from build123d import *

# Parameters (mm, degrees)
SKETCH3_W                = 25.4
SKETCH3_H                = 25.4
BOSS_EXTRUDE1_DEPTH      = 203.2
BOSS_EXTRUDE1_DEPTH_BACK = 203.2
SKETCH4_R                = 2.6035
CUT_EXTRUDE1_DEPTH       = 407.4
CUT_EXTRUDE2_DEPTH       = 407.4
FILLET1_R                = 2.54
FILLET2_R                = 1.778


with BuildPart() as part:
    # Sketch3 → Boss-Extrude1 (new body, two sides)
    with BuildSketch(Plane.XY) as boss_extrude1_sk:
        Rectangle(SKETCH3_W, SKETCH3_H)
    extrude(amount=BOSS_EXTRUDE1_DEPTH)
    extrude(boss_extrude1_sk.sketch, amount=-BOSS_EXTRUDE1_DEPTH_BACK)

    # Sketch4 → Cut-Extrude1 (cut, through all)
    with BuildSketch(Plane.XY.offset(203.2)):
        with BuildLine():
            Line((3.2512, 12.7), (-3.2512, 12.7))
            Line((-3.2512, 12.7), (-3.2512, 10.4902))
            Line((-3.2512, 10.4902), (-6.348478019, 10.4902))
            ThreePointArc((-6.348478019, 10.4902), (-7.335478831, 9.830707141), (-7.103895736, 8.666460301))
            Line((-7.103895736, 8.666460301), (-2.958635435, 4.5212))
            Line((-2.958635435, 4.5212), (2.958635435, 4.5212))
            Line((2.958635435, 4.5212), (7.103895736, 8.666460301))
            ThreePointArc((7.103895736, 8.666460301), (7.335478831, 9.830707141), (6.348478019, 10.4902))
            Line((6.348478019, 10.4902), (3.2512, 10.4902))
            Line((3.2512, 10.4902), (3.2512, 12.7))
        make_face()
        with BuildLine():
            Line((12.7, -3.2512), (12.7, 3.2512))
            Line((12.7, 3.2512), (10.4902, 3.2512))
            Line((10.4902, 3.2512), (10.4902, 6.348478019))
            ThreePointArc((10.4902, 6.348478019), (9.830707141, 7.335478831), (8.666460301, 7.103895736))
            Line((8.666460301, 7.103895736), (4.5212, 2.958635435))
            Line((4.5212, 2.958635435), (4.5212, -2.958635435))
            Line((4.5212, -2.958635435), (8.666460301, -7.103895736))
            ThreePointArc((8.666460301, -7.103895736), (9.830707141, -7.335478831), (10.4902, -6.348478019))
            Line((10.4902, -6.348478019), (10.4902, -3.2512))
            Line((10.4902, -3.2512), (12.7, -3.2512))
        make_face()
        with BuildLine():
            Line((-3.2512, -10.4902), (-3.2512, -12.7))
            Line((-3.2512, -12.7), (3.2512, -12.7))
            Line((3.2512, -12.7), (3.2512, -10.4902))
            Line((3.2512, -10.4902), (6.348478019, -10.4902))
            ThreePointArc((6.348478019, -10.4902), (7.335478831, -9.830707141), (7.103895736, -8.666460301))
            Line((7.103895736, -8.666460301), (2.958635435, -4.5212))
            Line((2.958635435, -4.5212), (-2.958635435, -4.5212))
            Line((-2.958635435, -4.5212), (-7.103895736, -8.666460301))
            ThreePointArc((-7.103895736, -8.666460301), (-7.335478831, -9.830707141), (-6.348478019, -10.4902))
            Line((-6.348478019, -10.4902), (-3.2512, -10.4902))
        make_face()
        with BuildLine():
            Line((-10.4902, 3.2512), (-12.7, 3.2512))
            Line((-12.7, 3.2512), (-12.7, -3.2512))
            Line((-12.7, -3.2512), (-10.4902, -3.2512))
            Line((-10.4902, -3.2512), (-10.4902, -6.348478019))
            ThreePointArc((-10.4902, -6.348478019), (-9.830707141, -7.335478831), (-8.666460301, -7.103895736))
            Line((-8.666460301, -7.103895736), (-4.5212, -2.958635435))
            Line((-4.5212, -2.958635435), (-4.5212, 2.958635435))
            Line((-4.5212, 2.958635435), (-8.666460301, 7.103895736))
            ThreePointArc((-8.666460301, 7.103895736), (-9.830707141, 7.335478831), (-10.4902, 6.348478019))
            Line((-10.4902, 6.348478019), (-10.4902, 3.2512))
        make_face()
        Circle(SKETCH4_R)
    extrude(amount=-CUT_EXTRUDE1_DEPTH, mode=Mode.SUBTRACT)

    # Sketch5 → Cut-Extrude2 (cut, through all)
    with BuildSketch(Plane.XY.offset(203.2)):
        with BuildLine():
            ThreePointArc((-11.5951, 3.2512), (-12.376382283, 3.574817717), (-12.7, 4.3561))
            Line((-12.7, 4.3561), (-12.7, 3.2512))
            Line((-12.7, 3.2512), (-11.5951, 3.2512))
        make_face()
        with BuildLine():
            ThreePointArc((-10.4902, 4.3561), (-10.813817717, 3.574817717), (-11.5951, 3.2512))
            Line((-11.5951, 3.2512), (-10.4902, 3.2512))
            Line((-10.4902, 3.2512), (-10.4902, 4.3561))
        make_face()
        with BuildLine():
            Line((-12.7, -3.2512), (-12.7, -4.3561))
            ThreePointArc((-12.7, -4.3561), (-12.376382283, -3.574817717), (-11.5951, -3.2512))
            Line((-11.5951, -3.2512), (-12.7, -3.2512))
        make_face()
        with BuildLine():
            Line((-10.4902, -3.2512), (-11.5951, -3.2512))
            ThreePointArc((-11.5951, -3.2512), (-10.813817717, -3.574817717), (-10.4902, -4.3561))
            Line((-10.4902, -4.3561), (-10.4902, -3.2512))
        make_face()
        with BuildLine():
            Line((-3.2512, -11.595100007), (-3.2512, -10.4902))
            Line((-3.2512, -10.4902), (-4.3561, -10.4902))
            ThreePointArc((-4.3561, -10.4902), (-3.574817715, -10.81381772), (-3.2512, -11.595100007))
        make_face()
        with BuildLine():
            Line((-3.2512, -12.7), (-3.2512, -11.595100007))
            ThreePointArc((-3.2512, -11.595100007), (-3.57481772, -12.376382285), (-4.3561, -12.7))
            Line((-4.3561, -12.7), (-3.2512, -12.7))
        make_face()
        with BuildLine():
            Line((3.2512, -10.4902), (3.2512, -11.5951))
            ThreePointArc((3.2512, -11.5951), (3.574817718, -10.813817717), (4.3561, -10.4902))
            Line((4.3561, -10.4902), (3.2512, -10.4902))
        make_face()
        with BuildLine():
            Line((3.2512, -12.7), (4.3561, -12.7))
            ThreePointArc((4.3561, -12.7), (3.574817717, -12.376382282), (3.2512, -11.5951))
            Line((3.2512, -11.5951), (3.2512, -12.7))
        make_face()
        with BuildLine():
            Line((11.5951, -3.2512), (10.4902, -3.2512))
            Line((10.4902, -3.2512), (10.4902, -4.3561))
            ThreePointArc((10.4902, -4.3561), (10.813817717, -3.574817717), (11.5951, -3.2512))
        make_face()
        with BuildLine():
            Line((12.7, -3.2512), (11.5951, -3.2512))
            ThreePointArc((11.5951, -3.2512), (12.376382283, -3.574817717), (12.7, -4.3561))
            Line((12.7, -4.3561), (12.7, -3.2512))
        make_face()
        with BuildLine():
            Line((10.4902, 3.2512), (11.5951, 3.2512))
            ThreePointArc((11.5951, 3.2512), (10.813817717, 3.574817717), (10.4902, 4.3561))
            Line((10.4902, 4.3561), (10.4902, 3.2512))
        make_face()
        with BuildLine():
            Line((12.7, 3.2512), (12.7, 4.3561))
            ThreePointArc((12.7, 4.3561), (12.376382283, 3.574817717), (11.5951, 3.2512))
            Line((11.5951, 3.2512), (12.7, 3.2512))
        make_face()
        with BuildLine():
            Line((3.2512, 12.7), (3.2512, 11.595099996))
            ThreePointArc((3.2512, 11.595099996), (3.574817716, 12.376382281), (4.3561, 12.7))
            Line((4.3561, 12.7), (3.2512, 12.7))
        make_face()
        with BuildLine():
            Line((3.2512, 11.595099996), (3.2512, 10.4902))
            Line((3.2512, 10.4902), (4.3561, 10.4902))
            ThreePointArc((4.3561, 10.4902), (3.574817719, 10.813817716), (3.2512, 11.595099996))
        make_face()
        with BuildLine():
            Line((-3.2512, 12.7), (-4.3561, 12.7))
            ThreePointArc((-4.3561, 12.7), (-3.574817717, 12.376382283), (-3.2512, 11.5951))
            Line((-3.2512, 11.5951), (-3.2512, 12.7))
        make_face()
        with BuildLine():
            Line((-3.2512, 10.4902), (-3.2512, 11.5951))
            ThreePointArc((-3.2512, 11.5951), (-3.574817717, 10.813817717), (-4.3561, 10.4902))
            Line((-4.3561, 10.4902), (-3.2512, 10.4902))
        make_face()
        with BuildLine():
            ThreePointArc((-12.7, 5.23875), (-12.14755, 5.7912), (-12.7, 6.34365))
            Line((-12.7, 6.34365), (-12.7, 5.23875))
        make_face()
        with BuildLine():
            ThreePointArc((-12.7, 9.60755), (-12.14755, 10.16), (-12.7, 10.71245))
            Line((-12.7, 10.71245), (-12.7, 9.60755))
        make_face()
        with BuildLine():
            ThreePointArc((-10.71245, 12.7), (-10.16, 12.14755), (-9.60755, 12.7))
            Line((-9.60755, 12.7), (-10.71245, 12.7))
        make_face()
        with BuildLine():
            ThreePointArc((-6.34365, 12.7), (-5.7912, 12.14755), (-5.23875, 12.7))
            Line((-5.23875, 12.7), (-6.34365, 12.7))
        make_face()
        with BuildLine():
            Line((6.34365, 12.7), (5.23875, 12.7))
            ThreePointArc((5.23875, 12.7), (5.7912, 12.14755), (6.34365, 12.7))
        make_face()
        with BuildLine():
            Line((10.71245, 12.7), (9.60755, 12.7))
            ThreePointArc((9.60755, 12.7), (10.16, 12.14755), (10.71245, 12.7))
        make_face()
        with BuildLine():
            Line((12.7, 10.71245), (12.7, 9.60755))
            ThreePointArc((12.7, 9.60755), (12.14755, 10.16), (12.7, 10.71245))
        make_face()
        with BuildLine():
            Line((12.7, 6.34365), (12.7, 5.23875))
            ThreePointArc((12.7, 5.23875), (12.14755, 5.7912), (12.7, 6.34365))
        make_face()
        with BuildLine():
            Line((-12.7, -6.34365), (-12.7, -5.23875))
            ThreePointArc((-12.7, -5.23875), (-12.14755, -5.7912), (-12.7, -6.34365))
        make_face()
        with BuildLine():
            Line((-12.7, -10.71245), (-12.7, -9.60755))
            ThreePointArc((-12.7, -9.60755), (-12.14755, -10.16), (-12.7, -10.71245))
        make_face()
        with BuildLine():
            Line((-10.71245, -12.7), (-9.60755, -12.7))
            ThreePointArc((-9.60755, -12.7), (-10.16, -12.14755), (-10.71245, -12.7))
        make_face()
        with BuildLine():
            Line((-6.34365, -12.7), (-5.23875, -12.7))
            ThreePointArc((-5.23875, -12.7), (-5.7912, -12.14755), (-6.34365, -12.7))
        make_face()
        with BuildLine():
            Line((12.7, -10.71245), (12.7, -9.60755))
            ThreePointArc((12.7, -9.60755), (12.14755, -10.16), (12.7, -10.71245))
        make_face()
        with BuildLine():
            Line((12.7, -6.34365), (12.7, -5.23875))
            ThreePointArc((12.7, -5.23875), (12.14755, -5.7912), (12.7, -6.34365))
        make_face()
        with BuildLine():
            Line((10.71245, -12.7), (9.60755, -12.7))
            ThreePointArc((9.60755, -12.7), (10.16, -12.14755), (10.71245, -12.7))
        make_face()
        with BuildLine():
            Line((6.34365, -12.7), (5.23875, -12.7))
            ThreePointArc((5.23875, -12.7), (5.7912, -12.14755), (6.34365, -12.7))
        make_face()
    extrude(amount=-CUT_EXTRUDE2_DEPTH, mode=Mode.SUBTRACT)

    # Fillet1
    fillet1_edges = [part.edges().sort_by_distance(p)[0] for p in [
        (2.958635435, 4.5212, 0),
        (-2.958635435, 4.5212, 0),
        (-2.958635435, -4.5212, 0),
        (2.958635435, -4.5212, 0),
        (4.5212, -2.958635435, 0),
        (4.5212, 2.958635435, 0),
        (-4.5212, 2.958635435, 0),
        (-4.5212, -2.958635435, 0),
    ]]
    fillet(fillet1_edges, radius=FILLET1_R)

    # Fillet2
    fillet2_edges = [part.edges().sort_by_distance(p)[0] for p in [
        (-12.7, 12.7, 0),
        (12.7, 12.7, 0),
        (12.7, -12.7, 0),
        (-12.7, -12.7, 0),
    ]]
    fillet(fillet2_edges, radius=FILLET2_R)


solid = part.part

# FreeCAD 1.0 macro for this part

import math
import FreeCAD as App
import Part
import Sketcher

V = App.Vector
Q = App.Units.Quantity


def edges_at(feature, points):
    """Names of the edges that pass closest to the given points."""
    edges = feature.Shape.Edges
    near = lambda p: min(range(len(edges)), key=lambda i: edges[i].distToShape(Part.Vertex(*p))[0])
    return sorted({f"Edge{near(p) + 1}" for p in points})


def add_polygon(sketch, points):
    """Adds a closed chain of lines whose ends are joined by coincident constraints."""
    first, n = sketch.GeometryCount, len(points)
    for a, b in zip(points, points[1:] + points[:1]):
        sketch.addGeometry(Part.LineSegment(App.Vector(*a, 0), App.Vector(*b, 0)), False)
    for i in range(n):
        sketch.addConstraint(Sketcher.Constraint("Coincident", first + i, 2, first + (i + 1) % n, 1))

doc = App.newDocument("Part")
body = doc.addObject("PartDesign::Body", "Body")

sketch1 = body.newObject("Sketcher::SketchObject", "Sketch")
sketch1.AttachmentSupport = (doc.getObject("XY_Plane"), [""])
sketch1.MapMode = "FlatFace"
add_polygon(sketch1, [(-13, 13), (-13, -13), (13, -13), (13, 13)])
sketch1.addConstraint([
    Sketcher.Constraint("Vertical", 0),
    Sketcher.Constraint("Horizontal", 1),
    Sketcher.Constraint("Vertical", 2),
    Sketcher.Constraint("Horizontal", 3),
    Sketcher.Constraint("Symmetric", 0, 2, 2, 2, -1, 1),
    Sketcher.Constraint("Equal", 3, 0),
    Sketcher.Constraint("DistanceX", 1, 1, 1, 2, Q("1 in")),
])
pad1 = body.newObject("PartDesign::Pad", "Pad")
pad1.Profile = sketch1
pad1.Type = "TwoLengths"
pad1.Length = Q("8 in")
pad1.Length2 = Q("8 in")

sketch2 = body.newObject("Sketcher::SketchObject", "Sketch001")
sketch2.AttachmentSupport = (doc.getObject("XY_Plane"), [""])
sketch2.MapMode = "FlatFace"
sketch2.AttachmentOffset = App.Placement(V(0, 0, 8 * 25.4), App.Rotation())
sketch2.addGeometry([
    Part.LineSegment(V(3.3, 12.7, 0), V(-3.3, 12.7, 0)),
    Part.LineSegment(V(-3.3, 12.7, 0), V(-3.3, 10.5, 0)),
    Part.LineSegment(V(-3.3, 10.5, 0), V(-6.3, 10.5, 0)),
    Part.ArcOfCircle(Part.Circle(V(-6.3, 9.4, 0), V(0, 0, 1), 1.1), math.radians(90), math.radians(225)),
    Part.LineSegment(V(-7.1, 8.7, 0), V(-3, 4.5, 0)),
    Part.LineSegment(V(-3, 4.5, 0), V(3, 4.5, 0)),
    Part.LineSegment(V(3, 4.5, 0), V(7.1, 8.7, 0)),
    Part.ArcOfCircle(Part.Circle(V(6.3, 9.4, 0), V(0, 0, 1), 1.1), math.radians(-45), math.radians(90)),
    Part.LineSegment(V(6.3, 10.5, 0), V(3.3, 10.5, 0)),
    Part.LineSegment(V(3.3, 10.5, 0), V(3.3, 12.7, 0)),
    Part.LineSegment(V(12.7, -3.3, 0), V(12.7, 3.3, 0)),
    Part.LineSegment(V(12.7, 3.3, 0), V(10.5, 3.3, 0)),
    Part.LineSegment(V(10.5, 3.3, 0), V(10.5, 6.3, 0)),
    Part.ArcOfCircle(Part.Circle(V(9.4, 6.3, 0), V(0, 0, 1), 1.1), math.radians(0), math.radians(135)),
    Part.LineSegment(V(8.7, 7.1, 0), V(4.5, 3, 0)),
    Part.LineSegment(V(4.5, 3, 0), V(4.5, -3, 0)),
    Part.LineSegment(V(4.5, -3, 0), V(8.7, -7.1, 0)),
    Part.ArcOfCircle(Part.Circle(V(9.4, -6.3, 0), V(0, 0, 1), 1.1), math.radians(-135), math.radians(0)),
    Part.LineSegment(V(10.5, -6.3, 0), V(10.5, -3.3, 0)),
    Part.LineSegment(V(10.5, -3.3, 0), V(12.7, -3.3, 0)),
    Part.LineSegment(V(-3.3, -10.5, 0), V(-3.3, -12.7, 0)),
    Part.LineSegment(V(-3.3, -12.7, 0), V(3.3, -12.7, 0)),
    Part.LineSegment(V(3.3, -12.7, 0), V(3.3, -10.5, 0)),
    Part.LineSegment(V(3.3, -10.5, 0), V(6.3, -10.5, 0)),
    Part.ArcOfCircle(Part.Circle(V(6.3, -9.4, 0), V(0, 0, 1), 1.1), math.radians(-90), math.radians(45)),
    Part.LineSegment(V(7.1, -8.7, 0), V(3, -4.5, 0)),
    Part.LineSegment(V(3, -4.5, 0), V(-3, -4.5, 0)),
    Part.LineSegment(V(-3, -4.5, 0), V(-7.1, -8.7, 0)),
    Part.ArcOfCircle(Part.Circle(V(-6.3, -9.4, 0), V(0, 0, 1), 1.1), math.radians(135), math.radians(270)),
    Part.LineSegment(V(-6.3, -10.5, 0), V(-3.3, -10.5, 0)),
    Part.LineSegment(V(-10.5, 3.3, 0), V(-12.7, 3.3, 0)),
    Part.LineSegment(V(-12.7, 3.3, 0), V(-12.7, -3.3, 0)),
    Part.LineSegment(V(-12.7, -3.3, 0), V(-10.5, -3.3, 0)),
    Part.LineSegment(V(-10.5, -3.3, 0), V(-10.5, -6.3, 0)),
    Part.ArcOfCircle(Part.Circle(V(-9.4, -6.3, 0), V(0, 0, 1), 1.1), math.radians(-180), math.radians(-45)),
    Part.LineSegment(V(-8.7, -7.1, 0), V(-4.5, -3, 0)),
    Part.LineSegment(V(-4.5, -3, 0), V(-4.5, 3, 0)),
    Part.LineSegment(V(-4.5, 3, 0), V(-8.7, 7.1, 0)),
    Part.ArcOfCircle(Part.Circle(V(-9.4, 6.3, 0), V(0, 0, 1), 1.1), math.radians(45), math.radians(180)),
    Part.LineSegment(V(-10.5, 6.3, 0), V(-10.5, 3.3, 0)),
    Part.Circle(V(0, 0, 0), V(0, 0, 1), 2.6),
], False)
sketch2.addConstraint([
    Sketcher.Constraint("Coincident", 0, 2, 1, 1),
    Sketcher.Constraint("Coincident", 1, 2, 2, 1),
    Sketcher.Constraint("Tangent", 2, 2, 3, 1),
    Sketcher.Constraint("Tangent", 3, 2, 4, 1),
    Sketcher.Constraint("Coincident", 4, 2, 5, 1),
    Sketcher.Constraint("Coincident", 5, 2, 6, 1),
    Sketcher.Constraint("Tangent", 6, 2, 7, 1),
    Sketcher.Constraint("Tangent", 7, 2, 8, 1),
    Sketcher.Constraint("Coincident", 8, 2, 9, 1),
    Sketcher.Constraint("Coincident", 9, 2, 0, 1),
    Sketcher.Constraint("Coincident", 10, 2, 11, 1),
    Sketcher.Constraint("Coincident", 11, 2, 12, 1),
    Sketcher.Constraint("Tangent", 12, 2, 13, 1),
    Sketcher.Constraint("Tangent", 13, 2, 14, 1),
    Sketcher.Constraint("Coincident", 14, 2, 15, 1),
    Sketcher.Constraint("Coincident", 15, 2, 16, 1),
    Sketcher.Constraint("Tangent", 16, 2, 17, 1),
    Sketcher.Constraint("Tangent", 17, 2, 18, 1),
    Sketcher.Constraint("Coincident", 18, 2, 19, 1),
    Sketcher.Constraint("Coincident", 19, 2, 10, 1),
    Sketcher.Constraint("Coincident", 20, 2, 21, 1),
    Sketcher.Constraint("Coincident", 21, 2, 22, 1),
    Sketcher.Constraint("Coincident", 22, 2, 23, 1),
    Sketcher.Constraint("Tangent", 23, 2, 24, 1),
    Sketcher.Constraint("Tangent", 24, 2, 25, 1),
    Sketcher.Constraint("Coincident", 25, 2, 26, 1),
    Sketcher.Constraint("Coincident", 26, 2, 27, 1),
    Sketcher.Constraint("Tangent", 27, 2, 28, 1),
    Sketcher.Constraint("Tangent", 28, 2, 29, 1),
    Sketcher.Constraint("Coincident", 29, 2, 20, 1),
    Sketcher.Constraint("Coincident", 30, 2, 31, 1),
    Sketcher.Constraint("Coincident", 31, 2, 32, 1),
    Sketcher.Constraint("Coincident", 32, 2, 33, 1),
    Sketcher.Constraint("Tangent", 33, 2, 34, 1),
    Sketcher.Constraint("Tangent", 34, 2, 35, 1),
    Sketcher.Constraint("Coincident", 35, 2, 36, 1),
    Sketcher.Constraint("Coincident", 36, 2, 37, 1),
    Sketcher.Constraint("Tangent", 37, 2, 38, 1),
    Sketcher.Constraint("Tangent", 38, 2, 39, 1),
    Sketcher.Constraint("Coincident", 39, 2, 30, 1),
    Sketcher.Constraint("Horizontal", 0),
    Sketcher.Constraint("Vertical", 1),
    Sketcher.Constraint("Horizontal", 2),
    Sketcher.Constraint("Horizontal", 5),
    Sketcher.Constraint("Horizontal", 8),
    Sketcher.Constraint("Vertical", 9),
    Sketcher.Constraint("Vertical", 10),
    Sketcher.Constraint("Horizontal", 11),
    Sketcher.Constraint("Vertical", 12),
    Sketcher.Constraint("Vertical", 15),
    Sketcher.Constraint("Vertical", 18),
    Sketcher.Constraint("Horizontal", 19),
    Sketcher.Constraint("Vertical", 20),
    Sketcher.Constraint("Horizontal", 21),
    Sketcher.Constraint("Vertical", 22),
    Sketcher.Constraint("Horizontal", 23),
    Sketcher.Constraint("Horizontal", 26),
    Sketcher.Constraint("Horizontal", 29),
    Sketcher.Constraint("Horizontal", 30),
    Sketcher.Constraint("Vertical", 31),
    Sketcher.Constraint("Horizontal", 32),
    Sketcher.Constraint("Vertical", 33),
    Sketcher.Constraint("Vertical", 36),
    Sketcher.Constraint("Vertical", 39),
    Sketcher.Constraint("Coincident", 40, 3, -1, 1),
    Sketcher.Constraint("Equal", 3, 7),
    Sketcher.Constraint("Equal", 7, 13),
    Sketcher.Constraint("Equal", 13, 17),
    Sketcher.Constraint("Equal", 17, 24),
    Sketcher.Constraint("Equal", 24, 28),
    Sketcher.Constraint("Equal", 28, 34),
    Sketcher.Constraint("Equal", 34, 38),
    Sketcher.Constraint("Symmetric", 3, 3, 24, 3, -1, 1),
    Sketcher.Constraint("Symmetric", 7, 3, 28, 3, -1, 1),
    Sketcher.Constraint("Symmetric", 13, 3, 34, 3, -1, 1),
    Sketcher.Constraint("Symmetric", 17, 3, 38, 3, -1, 1),
    Sketcher.Constraint("Symmetric", 9, 2, 20, 2, -1, 1),
    Sketcher.Constraint("Symmetric", 4, 2, 25, 2, -1, 1),
    Sketcher.Constraint("Symmetric", 19, 2, 30, 2, -1, 1),
    Sketcher.Constraint("Symmetric", 14, 2, 35, 2, -1, 1),
    Sketcher.Constraint("Symmetric", 3, 3, 7, 3, -2),
    Sketcher.Constraint("Symmetric", 17, 3, 34, 3, -2),
    Sketcher.Constraint("Perpendicular", 4, 6),
    Sketcher.Constraint("Parallel", 6, 14),
    Sketcher.Constraint("Perpendicular", 14, 16),
    Sketcher.Constraint("Perpendicular", 25, 27),
    Sketcher.Constraint("Perpendicular", 35, 37),
    Sketcher.Constraint("Horizontal", 3, 2, 6, 2),
    Sketcher.Constraint("Horizontal", 11, 2, 30, 2),
    Sketcher.Constraint("Horizontal", 19, 2, 31, 2),
    Sketcher.Constraint("Vertical", 1, 2, 20, 2),
    Sketcher.Constraint("Vertical", 9, 2, 21, 2),
    Sketcher.Constraint("Equal", 32, 1),
    Sketcher.Constraint("Equal", 21, 10),
    Sketcher.Constraint("Equal", 29, 12),
    Sketcher.Constraint("Equal", 26, 15),
    Sketcher.Constraint("Diameter", 40, Q("0.205 in")),
    Sketcher.Constraint("DistanceY", -1, 1, 0, 2, Q("0.5 in")),
    Sketcher.Constraint("DistanceX", -1, 1, 10, 2, Q("0.5 in")),
    Sketcher.Constraint("DistanceX", 0, 2, 0, 1, Q("0.256 in")),
    Sketcher.Constraint("DistanceX", 11, 2, 11, 1, Q("0.087 in")),
    Sketcher.Constraint("DistanceY", 10, 2, 5, 2, Q("0.05 in")),
    Sketcher.Constraint("Radius", 3, 1.068322),
    Sketcher.Constraint("DistanceX", 7, 3, 13, 3, Q("0.121 in")),
])
pocket1 = body.newObject("PartDesign::Pocket", "Pocket")
pocket1.Profile = sketch2
pocket1.Type = "ThroughAll"

sketch3 = body.newObject("Sketcher::SketchObject", "Sketch002")
sketch3.AttachmentSupport = (doc.getObject("XY_Plane"), [""])
sketch3.MapMode = "FlatFace"
sketch3.AttachmentOffset = App.Placement(V(0, 0, 8 * 25.4), App.Rotation())
sketch3.addGeometry([
    Part.ArcOfCircle(Part.Circle(V(-11.6, 4.4, 0), V(0, 0, 1), 1.1), math.radians(180), math.radians(270)),
    Part.LineSegment(V(-12.7, 4.4, 0), V(-12.7, 3.3, 0)),
    Part.LineSegment(V(-12.7, 3.3, 0), V(-11.6, 3.3, 0)),
    Part.ArcOfCircle(Part.Circle(V(-11.6, 4.4, 0), V(0, 0, 1), 1.1), math.radians(-90), math.radians(0)),
    Part.LineSegment(V(-11.6, 3.3, 0), V(-10.5, 3.3, 0)),
    Part.LineSegment(V(-10.5, 3.3, 0), V(-10.5, 4.4, 0)),
    Part.LineSegment(V(-12.7, -3.3, 0), V(-12.7, -4.4, 0)),
    Part.ArcOfCircle(Part.Circle(V(-11.6, -4.4, 0), V(0, 0, 1), 1.1), math.radians(90), math.radians(180)),
    Part.LineSegment(V(-11.6, -3.3, 0), V(-12.7, -3.3, 0)),
    Part.LineSegment(V(-10.5, -3.3, 0), V(-11.6, -3.3, 0)),
    Part.ArcOfCircle(Part.Circle(V(-11.6, -4.4, 0), V(0, 0, 1), 1.1), math.radians(0), math.radians(90)),
    Part.LineSegment(V(-10.5, -4.4, 0), V(-10.5, -3.3, 0)),
    Part.LineSegment(V(-3.3, -11.6, 0), V(-3.3, -10.5, 0)),
    Part.LineSegment(V(-3.3, -10.5, 0), V(-4.4, -10.5, 0)),
    Part.ArcOfCircle(Part.Circle(V(-4.4, -11.6, 0), V(0, 0, 1), 1.1), math.radians(0), math.radians(90)),
    Part.LineSegment(V(-3.3, -12.7, 0), V(-3.3, -11.6, 0)),
    Part.ArcOfCircle(Part.Circle(V(-4.4, -11.6, 0), V(0, 0, 1), 1.1), math.radians(-90), math.radians(0)),
    Part.LineSegment(V(-4.4, -12.7, 0), V(-3.3, -12.7, 0)),
    Part.LineSegment(V(3.3, -10.5, 0), V(3.3, -11.6, 0)),
    Part.ArcOfCircle(Part.Circle(V(4.4, -11.6, 0), V(0, 0, 1), 1.1), math.radians(90), math.radians(180)),
    Part.LineSegment(V(4.4, -10.5, 0), V(3.3, -10.5, 0)),
    Part.LineSegment(V(3.3, -12.7, 0), V(4.4, -12.7, 0)),
    Part.ArcOfCircle(Part.Circle(V(4.4, -11.6, 0), V(0, 0, 1), 1.1), math.radians(180), math.radians(270)),
    Part.LineSegment(V(3.3, -11.6, 0), V(3.3, -12.7, 0)),
    Part.LineSegment(V(11.6, -3.3, 0), V(10.5, -3.3, 0)),
    Part.LineSegment(V(10.5, -3.3, 0), V(10.5, -4.4, 0)),
    Part.ArcOfCircle(Part.Circle(V(11.6, -4.4, 0), V(0, 0, 1), 1.1), math.radians(90), math.radians(180)),
    Part.LineSegment(V(12.7, -3.3, 0), V(11.6, -3.3, 0)),
    Part.ArcOfCircle(Part.Circle(V(11.6, -4.4, 0), V(0, 0, 1), 1.1), math.radians(0), math.radians(90)),
    Part.LineSegment(V(12.7, -4.4, 0), V(12.7, -3.3, 0)),
    Part.LineSegment(V(10.5, 3.3, 0), V(11.6, 3.3, 0)),
    Part.ArcOfCircle(Part.Circle(V(11.6, 4.4, 0), V(0, 0, 1), 1.1), math.radians(180), math.radians(270)),
    Part.LineSegment(V(10.5, 4.4, 0), V(10.5, 3.3, 0)),
    Part.LineSegment(V(12.7, 3.3, 0), V(12.7, 4.4, 0)),
    Part.ArcOfCircle(Part.Circle(V(11.6, 4.4, 0), V(0, 0, 1), 1.1), math.radians(-90), math.radians(0)),
    Part.LineSegment(V(11.6, 3.3, 0), V(12.7, 3.3, 0)),
    Part.LineSegment(V(3.3, 12.7, 0), V(3.3, 11.6, 0)),
    Part.ArcOfCircle(Part.Circle(V(4.4, 11.6, 0), V(0, 0, 1), 1.1), math.radians(90), math.radians(180)),
    Part.LineSegment(V(4.4, 12.7, 0), V(3.3, 12.7, 0)),
    Part.LineSegment(V(3.3, 11.6, 0), V(3.3, 10.5, 0)),
    Part.LineSegment(V(3.3, 10.5, 0), V(4.4, 10.5, 0)),
    Part.ArcOfCircle(Part.Circle(V(4.4, 11.6, 0), V(0, 0, 1), 1.1), math.radians(-180), math.radians(-90)),
    Part.LineSegment(V(-3.3, 12.7, 0), V(-4.4, 12.7, 0)),
    Part.ArcOfCircle(Part.Circle(V(-4.4, 11.6, 0), V(0, 0, 1), 1.1), math.radians(0), math.radians(90)),
    Part.LineSegment(V(-3.3, 11.6, 0), V(-3.3, 12.7, 0)),
    Part.LineSegment(V(-3.3, 10.5, 0), V(-3.3, 11.6, 0)),
    Part.ArcOfCircle(Part.Circle(V(-4.4, 11.6, 0), V(0, 0, 1), 1.1), math.radians(-90), math.radians(0)),
    Part.LineSegment(V(-4.4, 10.5, 0), V(-3.3, 10.5, 0)),
    Part.ArcOfCircle(Part.Circle(V(-12.7, 5.8, 0), V(0, 0, 1), 0.6), math.radians(-90), math.radians(90)),
    Part.LineSegment(V(-12.7, 6.3, 0), V(-12.7, 5.2, 0)),
    Part.ArcOfCircle(Part.Circle(V(-12.7, 10.2, 0), V(0, 0, 1), 0.6), math.radians(-90), math.radians(90)),
    Part.LineSegment(V(-12.7, 10.7, 0), V(-12.7, 9.6, 0)),
    Part.ArcOfCircle(Part.Circle(V(-10.2, 12.7, 0), V(0, 0, 1), 0.6), math.radians(180), math.radians(360)),
    Part.LineSegment(V(-9.6, 12.7, 0), V(-10.7, 12.7, 0)),
    Part.ArcOfCircle(Part.Circle(V(-5.8, 12.7, 0), V(0, 0, 1), 0.6), math.radians(180), math.radians(360)),
    Part.LineSegment(V(-5.2, 12.7, 0), V(-6.3, 12.7, 0)),
    Part.LineSegment(V(6.3, 12.7, 0), V(5.2, 12.7, 0)),
    Part.ArcOfCircle(Part.Circle(V(5.8, 12.7, 0), V(0, 0, 1), 0.6), math.radians(180), math.radians(360)),
    Part.LineSegment(V(10.7, 12.7, 0), V(9.6, 12.7, 0)),
    Part.ArcOfCircle(Part.Circle(V(10.2, 12.7, 0), V(0, 0, 1), 0.6), math.radians(180), math.radians(360)),
    Part.LineSegment(V(12.7, 9.6, 0), V(12.7, 10.7, 0)),
    Part.ArcOfCircle(Part.Circle(V(12.7, 10.2, 0), V(0, 0, 1), 0.6), math.radians(90), math.radians(270)),
    Part.LineSegment(V(12.7, 5.2, 0), V(12.7, 6.3, 0)),
    Part.ArcOfCircle(Part.Circle(V(12.7, 5.8, 0), V(0, 0, 1), 0.6), math.radians(90), math.radians(270)),
    Part.LineSegment(V(-12.7, -5.2, 0), V(-12.7, -6.3, 0)),
    Part.ArcOfCircle(Part.Circle(V(-12.7, -5.8, 0), V(0, 0, 1), 0.6), math.radians(-90), math.radians(90)),
    Part.LineSegment(V(-12.7, -9.6, 0), V(-12.7, -10.7, 0)),
    Part.ArcOfCircle(Part.Circle(V(-12.7, -10.2, 0), V(0, 0, 1), 0.6), math.radians(-90), math.radians(90)),
    Part.LineSegment(V(-10.7, -12.7, 0), V(-9.6, -12.7, 0)),
    Part.ArcOfCircle(Part.Circle(V(-10.2, -12.7, 0), V(0, 0, 1), 0.6), math.radians(0), math.radians(180)),
    Part.LineSegment(V(-6.3, -12.7, 0), V(-5.2, -12.7, 0)),
    Part.ArcOfCircle(Part.Circle(V(-5.8, -12.7, 0), V(0, 0, 1), 0.6), math.radians(0), math.radians(180)),
    Part.LineSegment(V(12.7, -10.7, 0), V(12.7, -9.6, 0)),
    Part.ArcOfCircle(Part.Circle(V(12.7, -10.2, 0), V(0, 0, 1), 0.6), math.radians(90), math.radians(270)),
    Part.LineSegment(V(12.7, -6.3, 0), V(12.7, -5.2, 0)),
    Part.ArcOfCircle(Part.Circle(V(12.7, -5.8, 0), V(0, 0, 1), 0.6), math.radians(90), math.radians(270)),
    Part.LineSegment(V(9.6, -12.7, 0), V(10.7, -12.7, 0)),
    Part.ArcOfCircle(Part.Circle(V(10.2, -12.7, 0), V(0, 0, 1), 0.6), math.radians(0), math.radians(180)),
    Part.LineSegment(V(5.2, -12.7, 0), V(6.3, -12.7, 0)),
    Part.ArcOfCircle(Part.Circle(V(5.8, -12.7, 0), V(0, 0, 1), 0.6), math.radians(0), math.radians(180)),
], False)
sketch3.addConstraint([
    Sketcher.Constraint("Tangent", 0, 1, 1, 1),
    Sketcher.Constraint("Coincident", 1, 2, 2, 1),
    Sketcher.Constraint("Tangent", 2, 2, 0, 2),
    Sketcher.Constraint("Tangent", 3, 1, 4, 1),
    Sketcher.Constraint("Coincident", 4, 2, 5, 1),
    Sketcher.Constraint("Tangent", 5, 2, 3, 2),
    Sketcher.Constraint("Tangent", 6, 2, 7, 2),
    Sketcher.Constraint("Tangent", 7, 1, 8, 1),
    Sketcher.Constraint("Coincident", 8, 2, 6, 1),
    Sketcher.Constraint("Tangent", 9, 2, 10, 2),
    Sketcher.Constraint("Tangent", 10, 1, 11, 1),
    Sketcher.Constraint("Coincident", 11, 2, 9, 1),
    Sketcher.Constraint("Coincident", 12, 2, 13, 1),
    Sketcher.Constraint("Tangent", 13, 2, 14, 2),
    Sketcher.Constraint("Tangent", 14, 1, 12, 1),
    Sketcher.Constraint("Tangent", 15, 2, 16, 2),
    Sketcher.Constraint("Tangent", 16, 1, 17, 1),
    Sketcher.Constraint("Coincident", 17, 2, 15, 1),
    Sketcher.Constraint("Tangent", 18, 2, 19, 2),
    Sketcher.Constraint("Tangent", 19, 1, 20, 1),
    Sketcher.Constraint("Coincident", 20, 2, 18, 1),
    Sketcher.Constraint("Tangent", 21, 2, 22, 2),
    Sketcher.Constraint("Tangent", 22, 1, 23, 1),
    Sketcher.Constraint("Coincident", 23, 2, 21, 1),
    Sketcher.Constraint("Coincident", 24, 2, 25, 1),
    Sketcher.Constraint("Tangent", 25, 2, 26, 2),
    Sketcher.Constraint("Tangent", 26, 1, 24, 1),
    Sketcher.Constraint("Tangent", 27, 2, 28, 2),
    Sketcher.Constraint("Tangent", 28, 1, 29, 1),
    Sketcher.Constraint("Coincident", 29, 2, 27, 1),
    Sketcher.Constraint("Tangent", 30, 2, 31, 2),
    Sketcher.Constraint("Tangent", 31, 1, 32, 1),
    Sketcher.Constraint("Coincident", 32, 2, 30, 1),
    Sketcher.Constraint("Tangent", 33, 2, 34, 2),
    Sketcher.Constraint("Tangent", 34, 1, 35, 1),
    Sketcher.Constraint("Coincident", 35, 2, 33, 1),
    Sketcher.Constraint("Tangent", 36, 2, 37, 2),
    Sketcher.Constraint("Tangent", 37, 1, 38, 1),
    Sketcher.Constraint("Coincident", 38, 2, 36, 1),
    Sketcher.Constraint("Coincident", 39, 2, 40, 1),
    Sketcher.Constraint("Tangent", 40, 2, 41, 2),
    Sketcher.Constraint("Tangent", 41, 1, 39, 1),
    Sketcher.Constraint("Tangent", 42, 2, 43, 2),
    Sketcher.Constraint("Tangent", 43, 1, 44, 1),
    Sketcher.Constraint("Coincident", 44, 2, 42, 1),
    Sketcher.Constraint("Tangent", 45, 2, 46, 2),
    Sketcher.Constraint("Tangent", 46, 1, 47, 1),
    Sketcher.Constraint("Coincident", 47, 2, 45, 1),
    Sketcher.Constraint("Coincident", 48, 1, 49, 2),
    Sketcher.Constraint("Coincident", 49, 1, 48, 2),
    Sketcher.Constraint("Coincident", 50, 1, 51, 2),
    Sketcher.Constraint("Coincident", 51, 1, 50, 2),
    Sketcher.Constraint("Coincident", 52, 1, 53, 2),
    Sketcher.Constraint("Coincident", 53, 1, 52, 2),
    Sketcher.Constraint("Coincident", 54, 1, 55, 2),
    Sketcher.Constraint("Coincident", 55, 1, 54, 2),
    Sketcher.Constraint("Coincident", 56, 1, 57, 2),
    Sketcher.Constraint("Coincident", 57, 1, 56, 2),
    Sketcher.Constraint("Coincident", 58, 1, 59, 2),
    Sketcher.Constraint("Coincident", 59, 1, 58, 2),
    Sketcher.Constraint("Coincident", 60, 1, 61, 2),
    Sketcher.Constraint("Coincident", 61, 1, 60, 2),
    Sketcher.Constraint("Coincident", 62, 1, 63, 2),
    Sketcher.Constraint("Coincident", 63, 1, 62, 2),
    Sketcher.Constraint("Coincident", 64, 1, 65, 2),
    Sketcher.Constraint("Coincident", 65, 1, 64, 2),
    Sketcher.Constraint("Coincident", 66, 1, 67, 2),
    Sketcher.Constraint("Coincident", 67, 1, 66, 2),
    Sketcher.Constraint("Coincident", 68, 1, 69, 2),
    Sketcher.Constraint("Coincident", 69, 1, 68, 2),
    Sketcher.Constraint("Coincident", 70, 1, 71, 2),
    Sketcher.Constraint("Coincident", 71, 1, 70, 2),
    Sketcher.Constraint("Coincident", 72, 1, 73, 2),
    Sketcher.Constraint("Coincident", 73, 1, 72, 2),
    Sketcher.Constraint("Coincident", 74, 1, 75, 2),
    Sketcher.Constraint("Coincident", 75, 1, 74, 2),
    Sketcher.Constraint("Coincident", 76, 1, 77, 2),
    Sketcher.Constraint("Coincident", 77, 1, 76, 2),
    Sketcher.Constraint("Coincident", 78, 1, 79, 2),
    Sketcher.Constraint("Coincident", 79, 1, 78, 2),
    Sketcher.Constraint("Vertical", 1),
    Sketcher.Constraint("Horizontal", 2),
    Sketcher.Constraint("Horizontal", 4),
    Sketcher.Constraint("Vertical", 5),
    Sketcher.Constraint("Vertical", 6),
    Sketcher.Constraint("Horizontal", 8),
    Sketcher.Constraint("Horizontal", 9),
    Sketcher.Constraint("Vertical", 11),
    Sketcher.Constraint("Vertical", 12),
    Sketcher.Constraint("Horizontal", 13),
    Sketcher.Constraint("Vertical", 15),
    Sketcher.Constraint("Horizontal", 17),
    Sketcher.Constraint("Vertical", 18),
    Sketcher.Constraint("Horizontal", 20),
    Sketcher.Constraint("Horizontal", 21),
    Sketcher.Constraint("Vertical", 23),
    Sketcher.Constraint("Horizontal", 24),
    Sketcher.Constraint("Vertical", 25),
    Sketcher.Constraint("Horizontal", 27),
    Sketcher.Constraint("Vertical", 29),
    Sketcher.Constraint("Horizontal", 30),
    Sketcher.Constraint("Vertical", 32),
    Sketcher.Constraint("Vertical", 33),
    Sketcher.Constraint("Horizontal", 35),
    Sketcher.Constraint("Vertical", 36),
    Sketcher.Constraint("Horizontal", 38),
    Sketcher.Constraint("Vertical", 39),
    Sketcher.Constraint("Horizontal", 40),
    Sketcher.Constraint("Horizontal", 42),
    Sketcher.Constraint("Vertical", 44),
    Sketcher.Constraint("Vertical", 45),
    Sketcher.Constraint("Horizontal", 47),
    Sketcher.Constraint("Vertical", 49),
    Sketcher.Constraint("Vertical", 51),
    Sketcher.Constraint("Horizontal", 53),
    Sketcher.Constraint("Horizontal", 55),
    Sketcher.Constraint("Horizontal", 56),
    Sketcher.Constraint("Horizontal", 58),
    Sketcher.Constraint("Vertical", 60),
    Sketcher.Constraint("Vertical", 62),
    Sketcher.Constraint("Vertical", 64),
    Sketcher.Constraint("Vertical", 66),
    Sketcher.Constraint("Horizontal", 68),
    Sketcher.Constraint("Horizontal", 70),
    Sketcher.Constraint("Vertical", 72),
    Sketcher.Constraint("Vertical", 74),
    Sketcher.Constraint("Horizontal", 76),
    Sketcher.Constraint("Horizontal", 78),
    Sketcher.Constraint("Coincident", 3, 3, 0, 3),
    Sketcher.Constraint("Coincident", 10, 3, 7, 3),
    Sketcher.Constraint("Coincident", 16, 3, 14, 3),
    Sketcher.Constraint("Coincident", 22, 3, 19, 3),
    Sketcher.Constraint("Coincident", 28, 3, 26, 3),
    Sketcher.Constraint("Coincident", 34, 3, 31, 3),
    Sketcher.Constraint("Coincident", 41, 3, 37, 3),
    Sketcher.Constraint("Coincident", 46, 3, 43, 3),
    Sketcher.Constraint("Equal", 0, 3),
    Sketcher.Constraint("Equal", 3, 7),
    Sketcher.Constraint("Equal", 7, 10),
    Sketcher.Constraint("Equal", 10, 14),
    Sketcher.Constraint("Equal", 14, 16),
    Sketcher.Constraint("Equal", 16, 19),
    Sketcher.Constraint("Equal", 19, 22),
    Sketcher.Constraint("Equal", 22, 26),
    Sketcher.Constraint("Equal", 26, 28),
    Sketcher.Constraint("Equal", 28, 31),
    Sketcher.Constraint("Equal", 31, 34),
    Sketcher.Constraint("Equal", 34, 37),
    Sketcher.Constraint("Equal", 37, 41),
    Sketcher.Constraint("Equal", 41, 43),
    Sketcher.Constraint("Equal", 43, 46),
    Sketcher.Constraint("Equal", 48, 50),
    Sketcher.Constraint("Equal", 50, 52),
    Sketcher.Constraint("Equal", 52, 54),
    Sketcher.Constraint("Equal", 54, 57),
    Sketcher.Constraint("Equal", 57, 59),
    Sketcher.Constraint("Equal", 59, 61),
    Sketcher.Constraint("Equal", 61, 63),
    Sketcher.Constraint("Equal", 63, 65),
    Sketcher.Constraint("Equal", 65, 67),
    Sketcher.Constraint("Equal", 67, 69),
    Sketcher.Constraint("Equal", 69, 71),
    Sketcher.Constraint("Equal", 71, 73),
    Sketcher.Constraint("Equal", 73, 75),
    Sketcher.Constraint("Equal", 75, 77),
    Sketcher.Constraint("Equal", 77, 79),
    Sketcher.Constraint("Symmetric", 0, 3, 26, 3, -1, 1),
    Sketcher.Constraint("Symmetric", 7, 3, 31, 3, -1, 1),
    Sketcher.Constraint("Symmetric", 14, 3, 37, 3, -1, 1),
    Sketcher.Constraint("Symmetric", 19, 3, 43, 3, -1, 1),
    Sketcher.Constraint("Symmetric", 63, 3, 65, 3, -1, 1),
    Sketcher.Constraint("Symmetric", 61, 3, 67, 3, -1, 1),
    Sketcher.Constraint("Symmetric", 59, 3, 69, 3, -1, 1),
    Sketcher.Constraint("Symmetric", 57, 3, 71, 3, -1, 1),
    Sketcher.Constraint("Symmetric", 50, 3, 73, 3, -1, 1),
    Sketcher.Constraint("Symmetric", 48, 3, 75, 3, -1, 1),
    Sketcher.Constraint("Symmetric", 52, 3, 77, 3, -1, 1),
    Sketcher.Constraint("Symmetric", 54, 3, 79, 3, -1, 1),
    Sketcher.Constraint("Symmetric", 14, 3, 19, 3, -2),
    Sketcher.Constraint("Symmetric", 7, 3, 26, 3, -2),
    Sketcher.Constraint("Symmetric", 54, 3, 57, 3, -2),
    Sketcher.Constraint("Symmetric", 52, 3, 59, 3, -2),
    Sketcher.Constraint("Symmetric", 50, 3, 61, 3, -2),
    Sketcher.Constraint("Symmetric", 48, 3, 63, 3, -2),
    Sketcher.Constraint("Horizontal", 52, 3, 54, 3),
    Sketcher.Constraint("Horizontal", 79, 3, 16, 1),
    Sketcher.Constraint("Horizontal", 44, 2, 52, 1),
    Sketcher.Constraint("Horizontal", 53, 1, 54, 1),
    Sketcher.Constraint("Horizontal", 55, 1, 56, 1),
    Sketcher.Constraint("Horizontal", 57, 1, 58, 1),
    Sketcher.Constraint("Horizontal", 23, 2, 68, 1),
    Sketcher.Constraint("Horizontal", 69, 1, 70, 1),
    Sketcher.Constraint("Horizontal", 71, 1, 76, 1),
    Sketcher.Constraint("Horizontal", 77, 1, 78, 1),
    Sketcher.Constraint("Vertical", 48, 3, 50, 3),
    Sketcher.Constraint("Vertical", 67, 3, 0, 1),
    Sketcher.Constraint("Vertical", 8, 2, 48, 1),
    Sketcher.Constraint("Vertical", 49, 1, 50, 1),
    Sketcher.Constraint("Vertical", 35, 2, 60, 1),
    Sketcher.Constraint("Vertical", 61, 1, 62, 1),
    Sketcher.Constraint("Vertical", 51, 1, 64, 1),
    Sketcher.Constraint("Vertical", 65, 1, 66, 1),
    Sketcher.Constraint("Vertical", 63, 1, 72, 1),
    Sketcher.Constraint("Vertical", 73, 1, 74, 1),
    Sketcher.Constraint("Equal", 47, 53),
    Sketcher.Constraint("DistanceX", 48, 3, -1, 1, Q("0.5 in")),
    Sketcher.Constraint("DistanceY", -1, 1, 50, 3, Q("0.4 in")),
    Sketcher.Constraint("DistanceX", 52, 3, -1, 1, Q("0.4 in")),
    Sketcher.Constraint("DistanceY", -1, 1, 52, 3, Q("0.5 in")),
    Sketcher.Constraint("Radius", 0, Q("0.0435 in")),
    Sketcher.Constraint("DistanceY", -1, 1, 48, 3, Q("0.228 in")),
    Sketcher.Constraint("DistanceX", 54, 3, -1, 1, Q("0.228 in")),
    Sketcher.Constraint("DistanceY", -1, 1, 1, 2, Q("0.128 in")),
    Sketcher.Constraint("DistanceX", 12, 2, -1, 1, Q("0.128 in")),
])
pocket2 = body.newObject("PartDesign::Pocket", "Pocket001")
pocket2.Profile = sketch3
pocket2.Type = "ThroughAll"
doc.recompute()

fillet = body.newObject("PartDesign::Fillet", "Fillet")
fillet.Base = (pocket2, edges_at(pocket2, [
    (2.959, 4.521, 0),
    (-2.959, 4.521, 0),
    (-2.959, -4.521, 0),
    (2.959, -4.521, 0),
    (4.521, -2.959, 0),
    (4.521, 2.959, 0),
    (-4.521, 2.959, 0),
    (-4.521, -2.959, 0),
]))
fillet.Radius = Q("0.1 in")
doc.recompute()

fillet2 = body.newObject("PartDesign::Fillet", "Fillet001")
fillet2.Base = (fillet, edges_at(fillet, [
    (-12.7, 12.7, 0),
    (12.7, 12.7, 0),
    (12.7, -12.7, 0),
    (-12.7, -12.7, 0),
]))
fillet2.Radius = Q("0.07 in")

doc.recompute()
